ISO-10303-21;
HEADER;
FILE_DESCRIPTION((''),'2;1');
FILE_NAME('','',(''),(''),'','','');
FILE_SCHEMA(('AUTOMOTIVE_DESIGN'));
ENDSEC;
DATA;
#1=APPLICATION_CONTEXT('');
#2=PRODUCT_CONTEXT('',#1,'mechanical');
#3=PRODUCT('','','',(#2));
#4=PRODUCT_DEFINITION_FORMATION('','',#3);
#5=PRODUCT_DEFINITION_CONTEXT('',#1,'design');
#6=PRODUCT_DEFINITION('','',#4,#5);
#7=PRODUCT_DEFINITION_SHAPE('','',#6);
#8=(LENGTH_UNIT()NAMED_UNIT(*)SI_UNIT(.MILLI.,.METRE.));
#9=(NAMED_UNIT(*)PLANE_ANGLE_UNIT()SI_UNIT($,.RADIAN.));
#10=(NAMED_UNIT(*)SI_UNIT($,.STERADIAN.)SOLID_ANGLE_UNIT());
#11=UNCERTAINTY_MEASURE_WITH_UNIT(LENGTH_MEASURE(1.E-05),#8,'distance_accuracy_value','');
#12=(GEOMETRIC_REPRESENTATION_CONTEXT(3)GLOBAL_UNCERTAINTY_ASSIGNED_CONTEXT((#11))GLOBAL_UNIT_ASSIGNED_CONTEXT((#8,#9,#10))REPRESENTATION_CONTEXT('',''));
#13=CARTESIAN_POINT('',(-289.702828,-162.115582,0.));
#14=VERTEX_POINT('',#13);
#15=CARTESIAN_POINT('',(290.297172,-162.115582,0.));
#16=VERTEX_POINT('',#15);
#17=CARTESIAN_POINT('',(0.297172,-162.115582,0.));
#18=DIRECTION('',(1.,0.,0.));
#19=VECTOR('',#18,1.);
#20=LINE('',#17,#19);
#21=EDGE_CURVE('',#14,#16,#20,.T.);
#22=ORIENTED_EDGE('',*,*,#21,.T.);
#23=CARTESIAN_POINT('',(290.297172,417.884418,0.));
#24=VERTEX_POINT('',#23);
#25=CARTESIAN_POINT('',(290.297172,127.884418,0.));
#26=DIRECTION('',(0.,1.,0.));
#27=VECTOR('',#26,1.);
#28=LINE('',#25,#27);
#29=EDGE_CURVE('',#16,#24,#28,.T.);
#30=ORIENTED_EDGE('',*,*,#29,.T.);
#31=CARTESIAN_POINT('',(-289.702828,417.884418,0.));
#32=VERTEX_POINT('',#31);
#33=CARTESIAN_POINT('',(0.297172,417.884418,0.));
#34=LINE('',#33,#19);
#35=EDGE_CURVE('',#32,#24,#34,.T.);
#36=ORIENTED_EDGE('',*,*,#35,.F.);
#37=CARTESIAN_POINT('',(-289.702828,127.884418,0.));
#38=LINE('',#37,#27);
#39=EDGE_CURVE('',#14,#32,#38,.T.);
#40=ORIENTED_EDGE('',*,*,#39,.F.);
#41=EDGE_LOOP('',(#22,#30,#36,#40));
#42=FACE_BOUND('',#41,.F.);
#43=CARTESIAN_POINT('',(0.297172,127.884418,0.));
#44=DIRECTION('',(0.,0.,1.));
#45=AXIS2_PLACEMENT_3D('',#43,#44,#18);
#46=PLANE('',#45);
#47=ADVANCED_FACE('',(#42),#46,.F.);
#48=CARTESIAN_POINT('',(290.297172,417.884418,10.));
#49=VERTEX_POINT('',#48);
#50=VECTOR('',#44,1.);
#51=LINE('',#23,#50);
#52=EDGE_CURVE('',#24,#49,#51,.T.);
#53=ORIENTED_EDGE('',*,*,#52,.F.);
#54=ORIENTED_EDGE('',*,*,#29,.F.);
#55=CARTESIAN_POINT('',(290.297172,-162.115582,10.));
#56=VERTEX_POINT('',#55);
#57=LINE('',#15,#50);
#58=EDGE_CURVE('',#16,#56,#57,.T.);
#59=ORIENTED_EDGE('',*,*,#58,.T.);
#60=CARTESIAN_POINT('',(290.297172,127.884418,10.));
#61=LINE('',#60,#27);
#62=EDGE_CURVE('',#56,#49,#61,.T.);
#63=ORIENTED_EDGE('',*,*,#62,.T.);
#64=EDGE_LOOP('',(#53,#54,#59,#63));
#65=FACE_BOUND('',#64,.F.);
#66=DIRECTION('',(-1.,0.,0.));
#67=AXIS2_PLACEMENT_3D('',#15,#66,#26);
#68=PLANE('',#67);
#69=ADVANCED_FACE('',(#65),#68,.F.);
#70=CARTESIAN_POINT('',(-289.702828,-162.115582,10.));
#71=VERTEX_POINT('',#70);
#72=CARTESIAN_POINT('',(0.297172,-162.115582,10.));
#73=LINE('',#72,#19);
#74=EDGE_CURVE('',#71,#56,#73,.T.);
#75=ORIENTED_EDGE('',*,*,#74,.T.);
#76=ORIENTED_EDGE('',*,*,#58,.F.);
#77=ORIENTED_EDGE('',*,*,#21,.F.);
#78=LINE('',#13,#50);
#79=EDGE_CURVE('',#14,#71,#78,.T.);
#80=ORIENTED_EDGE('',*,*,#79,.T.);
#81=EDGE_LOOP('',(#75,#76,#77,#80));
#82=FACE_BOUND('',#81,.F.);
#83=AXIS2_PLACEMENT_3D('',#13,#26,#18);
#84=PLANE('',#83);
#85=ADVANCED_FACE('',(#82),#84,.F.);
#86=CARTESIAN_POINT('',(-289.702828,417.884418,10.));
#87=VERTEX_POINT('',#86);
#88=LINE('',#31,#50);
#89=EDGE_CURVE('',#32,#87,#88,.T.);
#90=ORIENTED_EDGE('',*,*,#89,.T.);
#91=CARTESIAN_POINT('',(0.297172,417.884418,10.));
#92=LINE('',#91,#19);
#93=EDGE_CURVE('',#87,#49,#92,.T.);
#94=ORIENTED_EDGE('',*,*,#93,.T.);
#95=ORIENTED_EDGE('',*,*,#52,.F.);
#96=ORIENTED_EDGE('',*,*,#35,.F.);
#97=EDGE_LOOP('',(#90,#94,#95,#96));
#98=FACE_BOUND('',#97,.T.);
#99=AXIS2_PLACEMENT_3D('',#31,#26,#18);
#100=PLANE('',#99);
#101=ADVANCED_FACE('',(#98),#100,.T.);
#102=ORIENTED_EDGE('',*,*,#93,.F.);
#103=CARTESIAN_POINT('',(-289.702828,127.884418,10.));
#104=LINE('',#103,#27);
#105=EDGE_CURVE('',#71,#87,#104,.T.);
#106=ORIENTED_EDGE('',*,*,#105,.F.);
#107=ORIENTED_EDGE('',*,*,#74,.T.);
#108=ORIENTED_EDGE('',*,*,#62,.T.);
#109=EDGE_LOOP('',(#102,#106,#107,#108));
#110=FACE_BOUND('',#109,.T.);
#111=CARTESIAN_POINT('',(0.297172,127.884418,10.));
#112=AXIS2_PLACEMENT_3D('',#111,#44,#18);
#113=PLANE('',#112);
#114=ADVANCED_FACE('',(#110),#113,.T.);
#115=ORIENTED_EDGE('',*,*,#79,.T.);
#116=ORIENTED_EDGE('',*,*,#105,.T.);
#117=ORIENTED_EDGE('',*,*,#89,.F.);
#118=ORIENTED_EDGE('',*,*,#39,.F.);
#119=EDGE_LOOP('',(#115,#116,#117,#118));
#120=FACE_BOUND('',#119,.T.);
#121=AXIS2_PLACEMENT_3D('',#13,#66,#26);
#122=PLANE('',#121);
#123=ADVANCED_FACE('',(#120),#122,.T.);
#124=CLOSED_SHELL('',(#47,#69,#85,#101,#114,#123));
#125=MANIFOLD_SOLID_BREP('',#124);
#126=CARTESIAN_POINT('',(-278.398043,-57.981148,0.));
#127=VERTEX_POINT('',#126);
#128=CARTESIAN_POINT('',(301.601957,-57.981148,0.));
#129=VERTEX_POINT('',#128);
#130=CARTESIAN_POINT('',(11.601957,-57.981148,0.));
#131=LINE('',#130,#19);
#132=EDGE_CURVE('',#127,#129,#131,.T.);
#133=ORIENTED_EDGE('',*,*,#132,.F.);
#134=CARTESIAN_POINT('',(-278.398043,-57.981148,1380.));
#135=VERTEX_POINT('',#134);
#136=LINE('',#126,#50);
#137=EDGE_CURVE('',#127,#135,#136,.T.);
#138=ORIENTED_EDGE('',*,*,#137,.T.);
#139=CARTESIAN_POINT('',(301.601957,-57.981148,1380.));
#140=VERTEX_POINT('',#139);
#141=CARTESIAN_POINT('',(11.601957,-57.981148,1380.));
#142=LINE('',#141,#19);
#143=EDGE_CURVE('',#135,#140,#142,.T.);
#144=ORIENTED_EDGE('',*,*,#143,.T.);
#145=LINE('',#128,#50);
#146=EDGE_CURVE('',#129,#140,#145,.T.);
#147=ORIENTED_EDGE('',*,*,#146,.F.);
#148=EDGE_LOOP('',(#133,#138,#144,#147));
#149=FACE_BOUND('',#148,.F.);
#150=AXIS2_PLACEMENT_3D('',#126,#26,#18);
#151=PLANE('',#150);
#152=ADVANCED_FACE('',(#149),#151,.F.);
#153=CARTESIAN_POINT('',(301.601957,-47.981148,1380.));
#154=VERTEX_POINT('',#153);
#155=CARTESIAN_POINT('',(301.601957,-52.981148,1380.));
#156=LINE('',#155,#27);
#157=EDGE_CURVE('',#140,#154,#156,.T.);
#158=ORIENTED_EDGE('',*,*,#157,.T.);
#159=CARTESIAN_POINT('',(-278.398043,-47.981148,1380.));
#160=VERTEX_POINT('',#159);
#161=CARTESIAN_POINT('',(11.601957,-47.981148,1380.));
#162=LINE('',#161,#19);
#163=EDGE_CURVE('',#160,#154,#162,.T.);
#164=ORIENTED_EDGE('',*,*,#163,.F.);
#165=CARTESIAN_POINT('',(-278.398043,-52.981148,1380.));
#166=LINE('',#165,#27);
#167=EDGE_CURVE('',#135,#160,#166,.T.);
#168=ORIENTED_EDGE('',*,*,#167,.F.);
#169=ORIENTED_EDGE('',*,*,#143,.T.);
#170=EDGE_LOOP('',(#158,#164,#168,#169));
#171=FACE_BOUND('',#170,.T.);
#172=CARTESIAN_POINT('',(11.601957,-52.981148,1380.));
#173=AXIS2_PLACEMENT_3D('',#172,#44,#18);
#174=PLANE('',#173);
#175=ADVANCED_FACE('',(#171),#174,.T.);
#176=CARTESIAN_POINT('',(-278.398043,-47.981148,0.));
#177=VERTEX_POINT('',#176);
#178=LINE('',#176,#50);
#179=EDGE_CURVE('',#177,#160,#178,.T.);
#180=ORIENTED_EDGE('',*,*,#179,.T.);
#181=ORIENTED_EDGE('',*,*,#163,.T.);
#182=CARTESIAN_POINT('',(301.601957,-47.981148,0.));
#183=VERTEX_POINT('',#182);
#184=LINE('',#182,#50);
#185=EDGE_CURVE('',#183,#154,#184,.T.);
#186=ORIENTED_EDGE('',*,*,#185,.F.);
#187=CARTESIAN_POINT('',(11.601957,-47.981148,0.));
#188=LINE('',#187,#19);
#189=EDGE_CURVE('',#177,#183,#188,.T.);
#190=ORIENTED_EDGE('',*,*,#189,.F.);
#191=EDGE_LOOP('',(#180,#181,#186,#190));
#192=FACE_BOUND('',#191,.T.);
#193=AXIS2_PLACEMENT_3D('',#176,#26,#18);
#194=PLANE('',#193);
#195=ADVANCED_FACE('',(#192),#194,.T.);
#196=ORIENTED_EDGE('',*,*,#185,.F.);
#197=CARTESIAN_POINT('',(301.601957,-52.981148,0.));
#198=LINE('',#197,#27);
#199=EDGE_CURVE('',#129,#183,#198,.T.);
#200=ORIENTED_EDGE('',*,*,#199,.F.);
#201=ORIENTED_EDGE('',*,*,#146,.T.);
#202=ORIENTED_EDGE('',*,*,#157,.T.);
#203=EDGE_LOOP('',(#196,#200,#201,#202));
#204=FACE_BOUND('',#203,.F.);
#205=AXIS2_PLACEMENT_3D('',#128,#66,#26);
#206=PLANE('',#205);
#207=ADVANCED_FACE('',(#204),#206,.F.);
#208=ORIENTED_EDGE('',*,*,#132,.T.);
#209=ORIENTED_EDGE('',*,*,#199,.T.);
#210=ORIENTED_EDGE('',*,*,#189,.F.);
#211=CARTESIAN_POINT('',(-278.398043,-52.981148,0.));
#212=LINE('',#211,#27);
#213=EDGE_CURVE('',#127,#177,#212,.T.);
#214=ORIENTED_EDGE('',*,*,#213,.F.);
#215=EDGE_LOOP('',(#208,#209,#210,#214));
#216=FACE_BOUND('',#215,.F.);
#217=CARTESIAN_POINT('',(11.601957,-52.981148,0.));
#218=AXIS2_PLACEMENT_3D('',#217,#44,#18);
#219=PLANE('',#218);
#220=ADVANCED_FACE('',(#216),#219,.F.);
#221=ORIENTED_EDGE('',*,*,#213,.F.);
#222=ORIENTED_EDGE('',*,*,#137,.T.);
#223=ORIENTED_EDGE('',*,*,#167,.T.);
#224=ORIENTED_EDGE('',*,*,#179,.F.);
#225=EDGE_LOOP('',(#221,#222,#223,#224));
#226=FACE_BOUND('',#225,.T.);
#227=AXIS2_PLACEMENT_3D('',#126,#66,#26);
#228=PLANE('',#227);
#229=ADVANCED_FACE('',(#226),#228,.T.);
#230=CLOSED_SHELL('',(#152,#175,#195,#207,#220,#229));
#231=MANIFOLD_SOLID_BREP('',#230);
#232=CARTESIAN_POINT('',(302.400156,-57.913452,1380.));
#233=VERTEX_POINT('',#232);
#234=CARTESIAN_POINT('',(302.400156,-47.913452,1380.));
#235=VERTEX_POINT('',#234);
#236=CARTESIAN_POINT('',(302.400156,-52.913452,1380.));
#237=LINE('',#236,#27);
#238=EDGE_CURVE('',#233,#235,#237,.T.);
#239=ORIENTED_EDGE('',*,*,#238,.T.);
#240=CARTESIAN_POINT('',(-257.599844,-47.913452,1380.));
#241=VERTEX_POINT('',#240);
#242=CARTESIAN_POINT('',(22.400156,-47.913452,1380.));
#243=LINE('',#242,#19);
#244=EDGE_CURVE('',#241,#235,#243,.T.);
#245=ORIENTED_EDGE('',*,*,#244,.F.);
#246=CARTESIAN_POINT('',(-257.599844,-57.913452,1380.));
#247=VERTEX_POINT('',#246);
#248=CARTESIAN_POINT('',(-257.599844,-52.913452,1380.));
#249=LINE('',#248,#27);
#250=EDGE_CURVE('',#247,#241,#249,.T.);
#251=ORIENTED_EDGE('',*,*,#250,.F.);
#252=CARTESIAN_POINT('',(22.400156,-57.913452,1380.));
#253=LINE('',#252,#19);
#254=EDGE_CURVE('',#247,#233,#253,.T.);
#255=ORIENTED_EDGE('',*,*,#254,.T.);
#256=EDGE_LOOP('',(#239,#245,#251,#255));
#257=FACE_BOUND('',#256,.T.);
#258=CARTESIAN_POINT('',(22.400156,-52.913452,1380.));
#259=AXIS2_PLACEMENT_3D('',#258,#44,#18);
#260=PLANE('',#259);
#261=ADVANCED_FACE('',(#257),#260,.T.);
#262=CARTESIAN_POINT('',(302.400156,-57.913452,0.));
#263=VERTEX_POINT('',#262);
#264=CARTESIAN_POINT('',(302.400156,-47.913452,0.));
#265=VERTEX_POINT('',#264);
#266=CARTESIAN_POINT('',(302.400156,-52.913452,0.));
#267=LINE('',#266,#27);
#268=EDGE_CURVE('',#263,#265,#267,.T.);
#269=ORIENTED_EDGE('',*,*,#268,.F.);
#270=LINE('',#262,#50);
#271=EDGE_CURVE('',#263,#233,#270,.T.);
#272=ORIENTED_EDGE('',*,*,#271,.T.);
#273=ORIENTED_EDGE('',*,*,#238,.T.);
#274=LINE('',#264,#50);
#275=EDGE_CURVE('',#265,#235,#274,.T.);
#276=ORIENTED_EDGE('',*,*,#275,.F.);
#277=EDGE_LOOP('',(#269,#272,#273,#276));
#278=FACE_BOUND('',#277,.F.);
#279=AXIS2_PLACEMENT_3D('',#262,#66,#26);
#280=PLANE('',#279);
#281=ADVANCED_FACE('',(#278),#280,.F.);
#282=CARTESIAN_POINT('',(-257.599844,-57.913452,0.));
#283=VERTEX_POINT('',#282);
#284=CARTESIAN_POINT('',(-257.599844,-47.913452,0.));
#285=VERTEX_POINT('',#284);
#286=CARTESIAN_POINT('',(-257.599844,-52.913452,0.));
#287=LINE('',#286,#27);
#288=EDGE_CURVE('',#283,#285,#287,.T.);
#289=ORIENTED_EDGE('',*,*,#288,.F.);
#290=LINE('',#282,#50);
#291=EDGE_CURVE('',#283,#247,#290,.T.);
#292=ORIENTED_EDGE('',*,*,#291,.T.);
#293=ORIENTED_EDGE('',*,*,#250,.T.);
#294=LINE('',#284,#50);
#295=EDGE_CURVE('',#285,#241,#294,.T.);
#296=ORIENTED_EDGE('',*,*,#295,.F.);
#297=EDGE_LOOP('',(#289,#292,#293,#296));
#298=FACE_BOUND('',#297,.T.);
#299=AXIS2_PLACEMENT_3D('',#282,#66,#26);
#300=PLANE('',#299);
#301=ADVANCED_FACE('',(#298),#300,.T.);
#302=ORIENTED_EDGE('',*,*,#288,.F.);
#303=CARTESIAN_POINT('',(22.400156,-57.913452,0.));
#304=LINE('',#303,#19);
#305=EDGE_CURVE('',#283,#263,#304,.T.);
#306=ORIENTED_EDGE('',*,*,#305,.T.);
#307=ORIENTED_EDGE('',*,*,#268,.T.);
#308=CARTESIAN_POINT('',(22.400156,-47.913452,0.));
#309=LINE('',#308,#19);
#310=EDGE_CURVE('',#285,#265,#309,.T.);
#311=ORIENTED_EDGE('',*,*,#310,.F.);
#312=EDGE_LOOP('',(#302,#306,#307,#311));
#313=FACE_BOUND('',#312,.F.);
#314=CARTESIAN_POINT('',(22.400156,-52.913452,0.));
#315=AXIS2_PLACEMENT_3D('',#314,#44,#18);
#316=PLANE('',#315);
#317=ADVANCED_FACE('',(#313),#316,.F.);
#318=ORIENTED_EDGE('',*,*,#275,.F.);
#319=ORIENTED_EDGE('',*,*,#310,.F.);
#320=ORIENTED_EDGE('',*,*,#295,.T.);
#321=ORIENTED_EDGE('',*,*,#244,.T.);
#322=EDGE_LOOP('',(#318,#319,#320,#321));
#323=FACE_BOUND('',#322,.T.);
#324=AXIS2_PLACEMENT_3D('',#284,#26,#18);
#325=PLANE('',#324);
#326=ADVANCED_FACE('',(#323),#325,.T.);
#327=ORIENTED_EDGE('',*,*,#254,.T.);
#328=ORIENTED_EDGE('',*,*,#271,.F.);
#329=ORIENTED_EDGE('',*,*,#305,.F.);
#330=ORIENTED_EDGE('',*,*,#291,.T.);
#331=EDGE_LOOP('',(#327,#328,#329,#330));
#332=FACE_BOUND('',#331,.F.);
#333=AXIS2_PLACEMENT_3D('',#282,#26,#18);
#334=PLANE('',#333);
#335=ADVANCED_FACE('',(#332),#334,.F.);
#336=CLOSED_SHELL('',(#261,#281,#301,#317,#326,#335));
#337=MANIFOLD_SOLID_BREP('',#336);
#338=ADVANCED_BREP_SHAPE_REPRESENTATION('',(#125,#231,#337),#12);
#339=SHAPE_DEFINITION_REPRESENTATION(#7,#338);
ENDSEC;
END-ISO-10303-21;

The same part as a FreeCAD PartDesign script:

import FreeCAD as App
import Part
import Sketcher
from FreeCAD import Vector

doc = App.newDocument("Part")
body = doc.addObject("PartDesign::Body", "Body")

sketch1 = body.newObject("Sketcher::SketchObject", "Sketch")
sketch1.AttachmentSupport = (doc.getObject("XY_Plane"), [""])
sketch1.MapMode = "FlatFace"
sketch1.addGeometry(Part.LineSegment(Vector(-278, -48, 0), Vector(-278, -58, 0)), False)
sketch1.addGeometry(Part.LineSegment(Vector(-278, -58, 0), Vector(302, -58, 0)), False)
sketch1.addGeometry(Part.LineSegment(Vector(302, -58, 0), Vector(302, -48, 0)), False)
sketch1.addGeometry(Part.LineSegment(Vector(302, -48, 0), Vector(-278, -48, 0)), False)
sketch1.addConstraint(Sketcher.Constraint("Coincident", 0, 2, 1, 1))
sketch1.addConstraint(Sketcher.Constraint("Coincident", 1, 2, 2, 1))
sketch1.addConstraint(Sketcher.Constraint("Coincident", 2, 2, 3, 1))
sketch1.addConstraint(Sketcher.Constraint("Coincident", 3, 2, 0, 1))
sketch1.addConstraint(Sketcher.Constraint("Vertical", 0))
sketch1.addConstraint(Sketcher.Constraint("Horizontal", 1))
sketch1.addConstraint(Sketcher.Constraint("Vertical", 2))
sketch1.addConstraint(Sketcher.Constraint("Horizontal", 3))
sketch1.addConstraint(Sketcher.Constraint("DistanceX", 1, 1, 1, 2, 580.0))
sketch1.addConstraint(Sketcher.Constraint("DistanceY", 0, 2, 0, 1, 10.0))
sketch1.addConstraint(Sketcher.Constraint("DistanceX", 0, 2, -1, 1, 278.398043))
sketch1.addConstraint(Sketcher.Constraint("DistanceY", 0, 2, -1, 1, 57.981148))
pad1 = body.newObject("PartDesign::Pad", "Pad")
pad1.Profile = sketch1
pad1.Length = 1380
body2 = doc.addObject("PartDesign::Body", "Body001")

sketch2 = body2.newObject("Sketcher::SketchObject", "Sketch001")
sketch2.AttachmentSupport = (doc.getObject("XY_Plane001"), [""])
sketch2.MapMode = "FlatFace"
sketch2.addGeometry(Part.LineSegment(Vector(-258, -48, 0), Vector(-258, -58, 0)), False)
sketch2.addGeometry(Part.LineSegment(Vector(-258, -58, 0), Vector(302, -58, 0)), False)
sketch2.addGeometry(Part.LineSegment(Vector(302, -58, 0), Vector(302, -48, 0)), False)
sketch2.addGeometry(Part.LineSegment(Vector(302, -48, 0), Vector(-258, -48, 0)), False)
sketch2.addConstraint(Sketcher.Constraint("Coincident", 0, 2, 1, 1))
sketch2.addConstraint(Sketcher.Constraint("Coincident", 1, 2, 2, 1))
sketch2.addConstraint(Sketcher.Constraint("Coincident", 2, 2, 3, 1))
sketch2.addConstraint(Sketcher.Constraint("Coincident", 3, 2, 0, 1))
sketch2.addConstraint(Sketcher.Constraint("Vertical", 0))
sketch2.addConstraint(Sketcher.Constraint("Horizontal", 1))
sketch2.addConstraint(Sketcher.Constraint("Vertical", 2))
sketch2.addConstraint(Sketcher.Constraint("Horizontal", 3))
sketch2.addConstraint(Sketcher.Constraint("DistanceX", 1, 1, 1, 2, 560.0))
sketch2.addConstraint(Sketcher.Constraint("DistanceY", 0, 2, 0, 1, 10.0))
sketch2.addConstraint(Sketcher.Constraint("DistanceX", 0, 2, -1, 1, 257.599844))
sketch2.addConstraint(Sketcher.Constraint("DistanceY", 0, 2, -1, 1, 57.913452))
pad2 = body2.newObject("PartDesign::Pad", "Pad001")
pad2.Profile = sketch2
pad2.Length = 1380
body3 = doc.addObject("PartDesign::Body", "Body002")

sketch3 = body3.newObject("Sketcher::SketchObject", "Sketch002")
sketch3.AttachmentSupport = (doc.getObject("XY_Plane002"), [""])
sketch3.MapMode = "FlatFace"
sketch3.addGeometry(Part.LineSegment(Vector(-290, 418, 0), Vector(-290, -162, 0)), False)
sketch3.addGeometry(Part.LineSegment(Vector(-290, -162, 0), Vector(290, -162, 0)), False)
sketch3.addGeometry(Part.LineSegment(Vector(290, -162, 0), Vector(290, 418, 0)), False)
sketch3.addGeometry(Part.LineSegment(Vector(290, 418, 0), Vector(-290, 418, 0)), False)
sketch3.addConstraint(Sketcher.Constraint("Coincident", 0, 2, 1, 1))
sketch3.addConstraint(Sketcher.Constraint("Coincident", 1, 2, 2, 1))
sketch3.addConstraint(Sketcher.Constraint("Coincident", 2, 2, 3, 1))
sketch3.addConstraint(Sketcher.Constraint("Coincident", 3, 2, 0, 1))
sketch3.addConstraint(Sketcher.Constraint("Vertical", 0))
sketch3.addConstraint(Sketcher.Constraint("Horizontal", 1))
sketch3.addConstraint(Sketcher.Constraint("Vertical", 2))
sketch3.addConstraint(Sketcher.Constraint("Horizontal", 3))
sketch3.addConstraint(Sketcher.Constraint("Equal", 3, 0))
sketch3.addConstraint(Sketcher.Constraint("DistanceX", 1, 1, 1, 2, 580.0))
sketch3.addConstraint(Sketcher.Constraint("DistanceX", 0, 2, -1, 1, 289.702828))
sketch3.addConstraint(Sketcher.Constraint("DistanceY", 0, 2, -1, 1, 162.115582))
pad3 = body3.newObject("PartDesign::Pad", "Pad002")
pad3.Profile = sketch3
pad3.Length = 10

doc.recompute()
